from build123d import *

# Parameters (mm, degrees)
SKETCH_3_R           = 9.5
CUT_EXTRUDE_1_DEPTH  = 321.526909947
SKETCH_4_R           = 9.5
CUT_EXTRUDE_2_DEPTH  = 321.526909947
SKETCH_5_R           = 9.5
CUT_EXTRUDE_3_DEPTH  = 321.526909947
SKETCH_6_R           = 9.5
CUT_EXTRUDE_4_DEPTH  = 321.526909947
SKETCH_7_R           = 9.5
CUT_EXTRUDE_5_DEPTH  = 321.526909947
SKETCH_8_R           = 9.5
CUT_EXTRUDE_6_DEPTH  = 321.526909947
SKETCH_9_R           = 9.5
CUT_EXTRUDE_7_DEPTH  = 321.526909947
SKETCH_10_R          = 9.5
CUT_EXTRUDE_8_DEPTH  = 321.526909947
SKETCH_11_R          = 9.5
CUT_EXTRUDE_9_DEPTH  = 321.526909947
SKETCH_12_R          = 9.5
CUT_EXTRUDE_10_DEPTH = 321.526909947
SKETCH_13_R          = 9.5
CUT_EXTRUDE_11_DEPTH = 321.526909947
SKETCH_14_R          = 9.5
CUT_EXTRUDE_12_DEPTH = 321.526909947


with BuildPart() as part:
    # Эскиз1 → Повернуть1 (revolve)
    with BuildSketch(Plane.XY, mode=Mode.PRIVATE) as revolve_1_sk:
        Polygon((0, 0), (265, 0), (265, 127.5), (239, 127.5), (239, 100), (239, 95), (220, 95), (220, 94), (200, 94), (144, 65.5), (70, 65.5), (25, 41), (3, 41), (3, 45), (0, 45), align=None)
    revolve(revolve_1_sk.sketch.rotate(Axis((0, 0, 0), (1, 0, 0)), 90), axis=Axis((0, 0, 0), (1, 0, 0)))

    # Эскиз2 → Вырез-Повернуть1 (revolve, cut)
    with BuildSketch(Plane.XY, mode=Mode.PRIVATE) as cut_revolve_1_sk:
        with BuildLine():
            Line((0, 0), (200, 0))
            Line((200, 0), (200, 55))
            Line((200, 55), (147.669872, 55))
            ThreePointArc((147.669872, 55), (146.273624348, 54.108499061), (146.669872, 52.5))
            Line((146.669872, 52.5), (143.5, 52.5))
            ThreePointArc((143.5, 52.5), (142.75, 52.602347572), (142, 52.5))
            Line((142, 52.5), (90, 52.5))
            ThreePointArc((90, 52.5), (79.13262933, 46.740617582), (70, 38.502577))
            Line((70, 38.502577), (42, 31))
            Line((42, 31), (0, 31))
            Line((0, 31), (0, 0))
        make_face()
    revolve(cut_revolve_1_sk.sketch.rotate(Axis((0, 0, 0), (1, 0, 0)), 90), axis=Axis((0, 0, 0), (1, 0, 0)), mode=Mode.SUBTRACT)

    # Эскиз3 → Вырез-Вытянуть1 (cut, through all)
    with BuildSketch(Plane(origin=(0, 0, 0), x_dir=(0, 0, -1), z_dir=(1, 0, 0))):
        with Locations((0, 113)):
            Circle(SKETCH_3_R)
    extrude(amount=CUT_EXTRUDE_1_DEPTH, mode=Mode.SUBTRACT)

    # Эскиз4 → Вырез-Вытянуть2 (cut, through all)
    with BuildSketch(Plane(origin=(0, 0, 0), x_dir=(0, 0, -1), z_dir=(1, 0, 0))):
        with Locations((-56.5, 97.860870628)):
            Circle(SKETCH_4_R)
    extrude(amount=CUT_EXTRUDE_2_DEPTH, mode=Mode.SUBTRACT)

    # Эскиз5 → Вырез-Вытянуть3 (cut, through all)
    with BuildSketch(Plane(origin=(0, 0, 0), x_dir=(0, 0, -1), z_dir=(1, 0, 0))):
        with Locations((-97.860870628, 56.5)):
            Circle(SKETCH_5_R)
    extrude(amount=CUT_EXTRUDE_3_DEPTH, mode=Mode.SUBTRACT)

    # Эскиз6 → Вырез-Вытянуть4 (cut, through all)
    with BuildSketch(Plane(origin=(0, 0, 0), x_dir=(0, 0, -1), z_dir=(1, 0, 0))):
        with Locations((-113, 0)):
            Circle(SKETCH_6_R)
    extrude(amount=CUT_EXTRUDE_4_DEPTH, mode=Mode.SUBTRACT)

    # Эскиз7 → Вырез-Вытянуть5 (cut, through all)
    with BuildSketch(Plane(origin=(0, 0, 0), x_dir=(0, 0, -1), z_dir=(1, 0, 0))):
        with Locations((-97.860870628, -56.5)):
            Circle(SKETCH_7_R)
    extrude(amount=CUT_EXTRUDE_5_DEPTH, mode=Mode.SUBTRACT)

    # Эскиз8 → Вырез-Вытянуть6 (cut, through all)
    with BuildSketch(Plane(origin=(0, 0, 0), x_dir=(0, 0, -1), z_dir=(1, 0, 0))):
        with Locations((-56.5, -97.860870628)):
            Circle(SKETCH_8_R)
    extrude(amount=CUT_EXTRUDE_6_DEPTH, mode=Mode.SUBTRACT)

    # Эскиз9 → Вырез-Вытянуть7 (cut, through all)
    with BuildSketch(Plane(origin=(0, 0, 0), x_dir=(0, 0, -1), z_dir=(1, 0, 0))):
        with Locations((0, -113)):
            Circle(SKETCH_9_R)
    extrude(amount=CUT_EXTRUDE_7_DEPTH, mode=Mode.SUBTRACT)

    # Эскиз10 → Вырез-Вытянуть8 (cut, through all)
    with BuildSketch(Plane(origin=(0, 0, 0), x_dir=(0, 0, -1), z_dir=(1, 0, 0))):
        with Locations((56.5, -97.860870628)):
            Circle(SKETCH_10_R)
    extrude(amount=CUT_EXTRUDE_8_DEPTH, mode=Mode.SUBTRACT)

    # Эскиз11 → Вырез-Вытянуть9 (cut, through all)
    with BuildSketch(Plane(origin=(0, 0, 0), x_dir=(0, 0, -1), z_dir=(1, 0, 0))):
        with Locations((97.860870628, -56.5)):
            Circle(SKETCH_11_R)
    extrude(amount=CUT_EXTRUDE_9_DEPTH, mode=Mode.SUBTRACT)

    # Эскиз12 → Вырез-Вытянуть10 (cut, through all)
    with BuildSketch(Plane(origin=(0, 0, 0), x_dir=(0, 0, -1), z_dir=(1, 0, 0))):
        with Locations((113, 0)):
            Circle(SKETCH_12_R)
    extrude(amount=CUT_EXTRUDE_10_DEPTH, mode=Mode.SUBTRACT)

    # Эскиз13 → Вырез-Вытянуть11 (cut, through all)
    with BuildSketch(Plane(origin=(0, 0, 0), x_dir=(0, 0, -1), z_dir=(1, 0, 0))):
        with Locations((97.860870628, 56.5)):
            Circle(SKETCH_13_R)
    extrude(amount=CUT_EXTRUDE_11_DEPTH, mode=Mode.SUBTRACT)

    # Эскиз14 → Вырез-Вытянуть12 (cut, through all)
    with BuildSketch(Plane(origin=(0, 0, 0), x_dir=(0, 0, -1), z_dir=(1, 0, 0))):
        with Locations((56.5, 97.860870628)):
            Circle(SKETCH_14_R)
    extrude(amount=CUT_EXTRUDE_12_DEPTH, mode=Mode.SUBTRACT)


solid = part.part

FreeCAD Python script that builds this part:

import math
import FreeCAD as App
import Part
import Sketcher

V = App.Vector
Q = App.Units.Quantity


def add_polygon(sketch, points):
    """Adds a closed chain of lines whose ends are joined by coincident constraints."""
    first, n = sketch.GeometryCount, len(points)
    for a, b in zip(points, points[1:] + points[:1]):
        sketch.addGeometry(Part.LineSegment(App.Vector(*a, 0), App.Vector(*b, 0)), False)
    for i in range(n):
        sketch.addConstraint(Sketcher.Constraint("Coincident", first + i, 2, first + (i + 1) % n, 1))

doc = App.newDocument("Part")
body = doc.addObject("PartDesign::Body", "Body")

# Sketch on XY plane
sketch1 = body.newObject("Sketcher::SketchObject", "Sketch")
sketch1.AttachmentSupport = (doc.getObject("XY_Plane"), [""])
sketch1.MapMode = "FlatFace"
add_polygon(sketch1, [(0, 0), (265, 0), (265, 127.5), (239, 127.5), (239, 95), (220, 95), (220, 94), (200, 94), (144, 65.5), (70, 65.5), (25, 41), (3, 41), (3, 45), (0, 45)])  # lines 0-13
sketch1.addConstraint([
    Sketcher.Constraint("Horizontal", 0),
    Sketcher.Constraint("Vertical", 1),
    Sketcher.Constraint("Horizontal", 2),
    Sketcher.Constraint("Vertical", 3),
    Sketcher.Constraint("Horizontal", 4),
    Sketcher.Constraint("Vertical", 5),
    Sketcher.Constraint("Horizontal", 6),
    Sketcher.Constraint("Horizontal", 8),
    Sketcher.Constraint("Horizontal", 10),
    Sketcher.Constraint("Vertical", 11),
    Sketcher.Constraint("Horizontal", 12),
    Sketcher.Constraint("Vertical", 13),
    Sketcher.Constraint("Coincident", 13, 2, -1, 1),
    Sketcher.Constraint("DistanceX", 0, 1, 0, 2, Q("265 mm")),
    Sketcher.Constraint("DistanceX", 2, 2, 2, 1, Q("26 mm")),
    Sketcher.Constraint("DistanceX", 4, 2, 4, 1, Q("19 mm")),
    Sketcher.Constraint("DistanceX", 6, 2, 6, 1, Q("20 mm")),
    Sketcher.Constraint("DistanceX", 8, 2, 8, 1, Q("74 mm")),
    Sketcher.Constraint("DistanceX", 10, 2, 10, 1, Q("22 mm")),
    Sketcher.Constraint("DistanceX", 12, 2, 12, 1, Q("3 mm")),
    Sketcher.Constraint("DistanceY", 5, 2, 5, 1, Q("1 mm")),
    Sketcher.Constraint("DistanceY", 11, 1, 11, 2, Q("4 mm")),
    Sketcher.Constraint("DistanceY", 13, 2, 13, 1, Q("45 mm")),
    Sketcher.Constraint("DistanceY", 1, 1, 1, 2, Q("127.5 mm")),
    Sketcher.Constraint("DistanceY", 3, 2, 3, 1, Q("32.5 mm")),
    Sketcher.Constraint("DistanceX", -1, 1, 7, 2, Q("144 mm")),
    Sketcher.Constraint("DistanceY", 7, 2, 2, 2, Q("62 mm")),
])
revolution = body.newObject("PartDesign::Revolution", "Revolution")
revolution.Profile = sketch1
revolution.ReferenceAxis = (sketch1, ["H_Axis"])
revolution.Angle = 360

# Sketch on XY plane
sketch2 = body.newObject("Sketcher::SketchObject", "Sketch001")
sketch2.AttachmentSupport = (doc.getObject("XY_Plane"), [""])
sketch2.MapMode = "FlatFace"
sketch2.addGeometry([
    Part.LineSegment(V(0, 0, 0), V(200, 0, 0)),  # 0
    Part.LineSegment(V(200, 0, 0), V(200, 55, 0)),  # 1
    Part.LineSegment(V(200, 55, 0), V(147.7, 55, 0)),  # 2
    Part.ArcOfCircle(Part.Circle(V(147.6, 53.6, 0), V(0, 0, 1), 1.4), math.radians(87), math.radians(229)),  # 3
    Part.LineSegment(V(146.7, 52.5, 0), V(143.5, 52.5, 0)),  # 4
    Part.ArcOfCircle(Part.Circle(V(142.8, 49.8, 0), V(0, 0, 1), 2.8), math.radians(74), math.radians(106)),  # 5
    Part.LineSegment(V(142, 52.5, 0), V(90, 52.5, 0)),  # 6
    Part.ArcOfCircle(Part.Circle(V(107.8, 5.8, 0), V(0, 0, 1), 50), math.radians(111), math.radians(139)),  # 7
    Part.LineSegment(V(70, 38.5, 0), V(42, 31, 0)),  # 8
    Part.LineSegment(V(42, 31, 0), V(0, 31, 0)),  # 9
    Part.LineSegment(V(0, 31, 0), V(0, 0, 0)),  # 10
], False)
sketch2.addConstraint([
    Sketcher.Constraint("Coincident", 0, 2, 1, 1),
    Sketcher.Constraint("Coincident", 1, 2, 2, 1),
    Sketcher.Constraint("Coincident", 2, 2, 3, 1),
    Sketcher.Constraint("Coincident", 3, 2, 4, 1),
    Sketcher.Constraint("Coincident", 4, 2, 5, 1),
    Sketcher.Constraint("Coincident", 5, 2, 6, 1),
    Sketcher.Constraint("Coincident", 6, 2, 7, 1),
    Sketcher.Constraint("Coincident", 7, 2, 8, 1),
    Sketcher.Constraint("Coincident", 8, 2, 9, 1),
    Sketcher.Constraint("Coincident", 9, 2, 10, 1),
    Sketcher.Constraint("Coincident", 10, 2, 0, 1),
    Sketcher.Constraint("Horizontal", 0),
    Sketcher.Constraint("Vertical", 1),
    Sketcher.Constraint("Horizontal", 2),
    Sketcher.Constraint("Horizontal", 4),
    Sketcher.Constraint("Horizontal", 6),
    Sketcher.Constraint("Horizontal", 9),
    Sketcher.Constraint("Vertical", 10),
    Sketcher.Constraint("Coincident", 10, 2, -1, 1),
    Sketcher.Constraint("Horizontal", 4, 2, 5, 2),
    Sketcher.Constraint("Radius", 7, Q("49.999998 mm")),
    Sketcher.Constraint("DistanceX", 0, 1, 0, 2, Q("200 mm")),
    Sketcher.Constraint("DistanceX", 6, 2, 6, 1, Q("52 mm")),
    Sketcher.Constraint("DistanceX", 9, 2, 9, 1, Q("42 mm")),
    Sketcher.Constraint("DistanceY", 1, 1, 1, 2, Q("55 mm")),
    Sketcher.Constraint("DistanceY", 10, 2, 10, 1, Q("31 mm")),
    Sketcher.Constraint("Angle", 8, Q("-165.000001 deg")),
    Sketcher.Constraint("DistanceX", -1, 1, 5, 2, Q("142 mm")),
    Sketcher.Constraint("DistanceX", -1, 1, 7, 2, Q("70 mm")),
    Sketcher.Constraint("DistanceX", 3, 2, 2, 2, Q("1 mm")),
    Sketcher.Constraint("DistanceY", -1, 1, 3, 2, Q("52.5 mm")),
    Sketcher.Constraint("DistanceX", -1, 1, 4, 2, Q("143.5 mm")),
    Sketcher.Constraint("Radius", 3, Q("1.421483 mm")),
    Sketcher.Constraint("Radius", 5, Q("2.799163 mm")),
    Sketcher.Constraint("DistanceX", 2, 2, 2, 1, Q("52.330128 mm")),
])
groove = body.newObject("PartDesign::Groove", "Groove")
groove.Profile = sketch2
groove.ReferenceAxis = (sketch2, ["H_Axis"])
groove.Angle = 360

# Sketch on YZ plane
sketch3 = body.newObject("Sketcher::SketchObject", "Sketch002")
sketch3.AttachmentSupport = (doc.getObject("YZ_Plane"), [""])
sketch3.MapMode = "FlatFace"
sketch3.addGeometry(Part.Circle(V(113, 0, 0), V(0, 0, 1), 10), False)
sketch3.addConstraint([
    Sketcher.Constraint("PointOnObject", 0, 3, -1),
    Sketcher.Constraint("Diameter", 0, Q("19 mm")),
    Sketcher.Constraint("DistanceX", -1, 1, 0, 3, Q("113 mm")),
])
pocket1 = body.newObject("PartDesign::Pocket", "Pocket")
pocket1.Profile = sketch3
pocket1.Type = "ThroughAll"
pocket1.Reversed = True

# Sketch on YZ plane
sketch4 = body.newObject("Sketcher::SketchObject", "Sketch003")
sketch4.AttachmentSupport = (doc.getObject("YZ_Plane"), [""])
sketch4.MapMode = "FlatFace"
sketch4.addGeometry(Part.Circle(V(98, 56, 0), V(0, 0, 1), 10), False)
sketch4.addConstraint([
    Sketcher.Constraint("Diameter", 0, Q("19 mm")),
    Sketcher.Constraint("DistanceY", -1, 1, 0, 3, Q("56.5 mm")),
    Sketcher.Constraint("DistanceX", -1, 1, 0, 3, Q("97.860871 mm")),
])
pocket2 = body.newObject("PartDesign::Pocket", "Pocket001")
pocket2.Profile = sketch4
pocket2.Type = "ThroughAll"
pocket2.Reversed = True

# Sketch on YZ plane
sketch5 = body.newObject("Sketcher::SketchObject", "Sketch004")
sketch5.AttachmentSupport = (doc.getObject("YZ_Plane"), [""])
sketch5.MapMode = "FlatFace"
sketch5.addGeometry(Part.Circle(V(56, 98, 0), V(0, 0, 1), 10), False)
sketch5.addConstraint([
    Sketcher.Constraint("Diameter", 0, Q("19 mm")),
    Sketcher.Constraint("DistanceX", -1, 1, 0, 3, Q("56.5 mm")),
    Sketcher.Constraint("DistanceY", -1, 1, 0, 3, Q("97.860871 mm")),
])
pocket3 = body.newObject("PartDesign::Pocket", "Pocket002")
pocket3.Profile = sketch5
pocket3.Type = "ThroughAll"
pocket3.Reversed = True

# Sketch on YZ plane
sketch6 = body.newObject("Sketcher::SketchObject", "Sketch005")
sketch6.AttachmentSupport = (doc.getObject("YZ_Plane"), [""])
sketch6.MapMode = "FlatFace"
sketch6.addGeometry(Part.Circle(V(0, 113, 0), V(0, 0, 1), 10), False)
sketch6.addConstraint([
    Sketcher.Constraint("PointOnObject", 0, 3, -2),
    Sketcher.Constraint("Diameter", 0, Q("19 mm")),
    Sketcher.Constraint("DistanceY", -1, 1, 0, 3, Q("113 mm")),
])
pocket4 = body.newObject("PartDesign::Pocket", "Pocket003")
pocket4.Profile = sketch6
pocket4.Type = "ThroughAll"
pocket4.Reversed = True

# Sketch on YZ plane
sketch7 = body.newObject("Sketcher::SketchObject", "Sketch006")
sketch7.AttachmentSupport = (doc.getObject("YZ_Plane"), [""])
sketch7.MapMode = "FlatFace"
sketch7.addGeometry(Part.Circle(V(-56, 98, 0), V(0, 0, 1), 10), False)
sketch7.addConstraint([
    Sketcher.Constraint("Diameter", 0, Q("19 mm")),
    Sketcher.Constraint("DistanceX", 0, 3, -1, 1, Q("56.5 mm")),
    Sketcher.Constraint("DistanceY", -1, 1, 0, 3, Q("97.860871 mm")),
])
pocket5 = body.newObject("PartDesign::Pocket", "Pocket004")
pocket5.Profile = sketch7
pocket5.Type = "ThroughAll"
pocket5.Reversed = True

# Sketch on YZ plane
sketch8 = body.newObject("Sketcher::SketchObject", "Sketch007")
sketch8.AttachmentSupport = (doc.getObject("YZ_Plane"), [""])
sketch8.MapMode = "FlatFace"
sketch8.addGeometry(Part.Circle(V(-98, 56, 0), V(0, 0, 1), 10), False)
sketch8.addConstraint([
    Sketcher.Constraint("Diameter", 0, Q("19 mm")),
    Sketcher.Constraint("DistanceY", -1, 1, 0, 3, Q("56.5 mm")),
    Sketcher.Constraint("DistanceX", 0, 3, -1, 1, Q("97.860871 mm")),
])
pocket6 = body.newObject("PartDesign::Pocket", "Pocket005")
pocket6.Profile = sketch8
pocket6.Type = "ThroughAll"
pocket6.Reversed = True

# Sketch on YZ plane
sketch9 = body.newObject("Sketcher::SketchObject", "Sketch008")
sketch9.AttachmentSupport = (doc.getObject("YZ_Plane"), [""])
sketch9.MapMode = "FlatFace"
sketch9.addGeometry(Part.Circle(V(-113, 0, 0), V(0, 0, 1), 10), False)
sketch9.addConstraint([
    Sketcher.Constraint("PointOnObject", 0, 3, -1),
    Sketcher.Constraint("Diameter", 0, Q("19 mm")),
    Sketcher.Constraint("DistanceX", 0, 3, -1, 1, Q("113 mm")),
])
pocket7 = body.newObject("PartDesign::Pocket", "Pocket006")
pocket7.Profile = sketch9
pocket7.Type = "ThroughAll"
pocket7.Reversed = True

# Sketch on YZ plane
sketch10 = body.newObject("Sketcher::SketchObject", "Sketch009")
sketch10.AttachmentSupport = (doc.getObject("YZ_Plane"), [""])
sketch10.MapMode = "FlatFace"
sketch10.addGeometry(Part.Circle(V(-98, -56, 0), V(0, 0, 1), 10), False)
sketch10.addConstraint([
    Sketcher.Constraint("Diameter", 0, Q("19 mm")),
    Sketcher.Constraint("DistanceY", 0, 3, -1, 1, Q("56.5 mm")),
    Sketcher.Constraint("DistanceX", 0, 3, -1, 1, Q("97.860871 mm")),
])
pocket8 = body.newObject("PartDesign::Pocket", "Pocket007")
pocket8.Profile = sketch10
pocket8.Type = "ThroughAll"
pocket8.Reversed = True

# Sketch on YZ plane
sketch11 = body.newObject("Sketcher::SketchObject", "Sketch010")
sketch11.AttachmentSupport = (doc.getObject("YZ_Plane"), [""])
sketch11.MapMode = "FlatFace"
sketch11.addGeometry(Part.Circle(V(-56, -98, 0), V(0, 0, 1), 10), False)
sketch11.addConstraint([
    Sketcher.Constraint("Diameter", 0, Q("19 mm")),
    Sketcher.Constraint("DistanceX", 0, 3, -1, 1, Q("56.5 mm")),
    Sketcher.Constraint("DistanceY", 0, 3, -1, 1, Q("97.860871 mm")),
])
pocket9 = body.newObject("PartDesign::Pocket", "Pocket008")
pocket9.Profile = sketch11
pocket9.Type = "ThroughAll"
pocket9.Reversed = True

# Sketch on YZ plane
sketch12 = body.newObject("Sketcher::SketchObject", "Sketch011")
sketch12.AttachmentSupport = (doc.getObject("YZ_Plane"), [""])
sketch12.MapMode = "FlatFace"
sketch12.addGeometry(Part.Circle(V(0, -113, 0), V(0, 0, 1), 10), False)
sketch12.addConstraint([
    Sketcher.Constraint("PointOnObject", 0, 3, -2),
    Sketcher.Constraint("Diameter", 0, Q("19 mm")),
    Sketcher.Constraint("DistanceY", 0, 3, -1, 1, Q("113 mm")),
])
pocket10 = body.newObject("PartDesign::Pocket", "Pocket009")
pocket10.Profile = sketch12
pocket10.Type = "ThroughAll"
pocket10.Reversed = True

# Sketch on YZ plane
sketch13 = body.newObject("Sketcher::SketchObject", "Sketch012")
sketch13.AttachmentSupport = (doc.getObject("YZ_Plane"), [""])
sketch13.MapMode = "FlatFace"
sketch13.addGeometry(Part.Circle(V(56, -98, 0), V(0, 0, 1), 10), False)
sketch13.addConstraint([
    Sketcher.Constraint("Diameter", 0, Q("19 mm")),
    Sketcher.Constraint("DistanceX", -1, 1, 0, 3, Q("56.5 mm")),
    Sketcher.Constraint("DistanceY", 0, 3, -1, 1, Q("97.860871 mm")),
])
pocket11 = body.newObject("PartDesign::Pocket", "Pocket010")
pocket11.Profile = sketch13
pocket11.Type = "ThroughAll"
pocket11.Reversed = True

# Sketch on YZ plane
sketch14 = body.newObject("Sketcher::SketchObject", "Sketch013")
sketch14.AttachmentSupport = (doc.getObject("YZ_Plane"), [""])
sketch14.MapMode = "FlatFace"
sketch14.addGeometry(Part.Circle(V(98, -56, 0), V(0, 0, 1), 10), False)
sketch14.addConstraint([
    Sketcher.Constraint("Diameter", 0, Q("19 mm")),
    Sketcher.Constraint("DistanceY", 0, 3, -1, 1, Q("56.5 mm")),
    Sketcher.Constraint("DistanceX", -1, 1, 0, 3, Q("97.860871 mm")),
])
pocket12 = body.newObject("PartDesign::Pocket", "Pocket011")
pocket12.Profile = sketch14
pocket12.Type = "ThroughAll"
pocket12.Reversed = True

doc.recompute()
